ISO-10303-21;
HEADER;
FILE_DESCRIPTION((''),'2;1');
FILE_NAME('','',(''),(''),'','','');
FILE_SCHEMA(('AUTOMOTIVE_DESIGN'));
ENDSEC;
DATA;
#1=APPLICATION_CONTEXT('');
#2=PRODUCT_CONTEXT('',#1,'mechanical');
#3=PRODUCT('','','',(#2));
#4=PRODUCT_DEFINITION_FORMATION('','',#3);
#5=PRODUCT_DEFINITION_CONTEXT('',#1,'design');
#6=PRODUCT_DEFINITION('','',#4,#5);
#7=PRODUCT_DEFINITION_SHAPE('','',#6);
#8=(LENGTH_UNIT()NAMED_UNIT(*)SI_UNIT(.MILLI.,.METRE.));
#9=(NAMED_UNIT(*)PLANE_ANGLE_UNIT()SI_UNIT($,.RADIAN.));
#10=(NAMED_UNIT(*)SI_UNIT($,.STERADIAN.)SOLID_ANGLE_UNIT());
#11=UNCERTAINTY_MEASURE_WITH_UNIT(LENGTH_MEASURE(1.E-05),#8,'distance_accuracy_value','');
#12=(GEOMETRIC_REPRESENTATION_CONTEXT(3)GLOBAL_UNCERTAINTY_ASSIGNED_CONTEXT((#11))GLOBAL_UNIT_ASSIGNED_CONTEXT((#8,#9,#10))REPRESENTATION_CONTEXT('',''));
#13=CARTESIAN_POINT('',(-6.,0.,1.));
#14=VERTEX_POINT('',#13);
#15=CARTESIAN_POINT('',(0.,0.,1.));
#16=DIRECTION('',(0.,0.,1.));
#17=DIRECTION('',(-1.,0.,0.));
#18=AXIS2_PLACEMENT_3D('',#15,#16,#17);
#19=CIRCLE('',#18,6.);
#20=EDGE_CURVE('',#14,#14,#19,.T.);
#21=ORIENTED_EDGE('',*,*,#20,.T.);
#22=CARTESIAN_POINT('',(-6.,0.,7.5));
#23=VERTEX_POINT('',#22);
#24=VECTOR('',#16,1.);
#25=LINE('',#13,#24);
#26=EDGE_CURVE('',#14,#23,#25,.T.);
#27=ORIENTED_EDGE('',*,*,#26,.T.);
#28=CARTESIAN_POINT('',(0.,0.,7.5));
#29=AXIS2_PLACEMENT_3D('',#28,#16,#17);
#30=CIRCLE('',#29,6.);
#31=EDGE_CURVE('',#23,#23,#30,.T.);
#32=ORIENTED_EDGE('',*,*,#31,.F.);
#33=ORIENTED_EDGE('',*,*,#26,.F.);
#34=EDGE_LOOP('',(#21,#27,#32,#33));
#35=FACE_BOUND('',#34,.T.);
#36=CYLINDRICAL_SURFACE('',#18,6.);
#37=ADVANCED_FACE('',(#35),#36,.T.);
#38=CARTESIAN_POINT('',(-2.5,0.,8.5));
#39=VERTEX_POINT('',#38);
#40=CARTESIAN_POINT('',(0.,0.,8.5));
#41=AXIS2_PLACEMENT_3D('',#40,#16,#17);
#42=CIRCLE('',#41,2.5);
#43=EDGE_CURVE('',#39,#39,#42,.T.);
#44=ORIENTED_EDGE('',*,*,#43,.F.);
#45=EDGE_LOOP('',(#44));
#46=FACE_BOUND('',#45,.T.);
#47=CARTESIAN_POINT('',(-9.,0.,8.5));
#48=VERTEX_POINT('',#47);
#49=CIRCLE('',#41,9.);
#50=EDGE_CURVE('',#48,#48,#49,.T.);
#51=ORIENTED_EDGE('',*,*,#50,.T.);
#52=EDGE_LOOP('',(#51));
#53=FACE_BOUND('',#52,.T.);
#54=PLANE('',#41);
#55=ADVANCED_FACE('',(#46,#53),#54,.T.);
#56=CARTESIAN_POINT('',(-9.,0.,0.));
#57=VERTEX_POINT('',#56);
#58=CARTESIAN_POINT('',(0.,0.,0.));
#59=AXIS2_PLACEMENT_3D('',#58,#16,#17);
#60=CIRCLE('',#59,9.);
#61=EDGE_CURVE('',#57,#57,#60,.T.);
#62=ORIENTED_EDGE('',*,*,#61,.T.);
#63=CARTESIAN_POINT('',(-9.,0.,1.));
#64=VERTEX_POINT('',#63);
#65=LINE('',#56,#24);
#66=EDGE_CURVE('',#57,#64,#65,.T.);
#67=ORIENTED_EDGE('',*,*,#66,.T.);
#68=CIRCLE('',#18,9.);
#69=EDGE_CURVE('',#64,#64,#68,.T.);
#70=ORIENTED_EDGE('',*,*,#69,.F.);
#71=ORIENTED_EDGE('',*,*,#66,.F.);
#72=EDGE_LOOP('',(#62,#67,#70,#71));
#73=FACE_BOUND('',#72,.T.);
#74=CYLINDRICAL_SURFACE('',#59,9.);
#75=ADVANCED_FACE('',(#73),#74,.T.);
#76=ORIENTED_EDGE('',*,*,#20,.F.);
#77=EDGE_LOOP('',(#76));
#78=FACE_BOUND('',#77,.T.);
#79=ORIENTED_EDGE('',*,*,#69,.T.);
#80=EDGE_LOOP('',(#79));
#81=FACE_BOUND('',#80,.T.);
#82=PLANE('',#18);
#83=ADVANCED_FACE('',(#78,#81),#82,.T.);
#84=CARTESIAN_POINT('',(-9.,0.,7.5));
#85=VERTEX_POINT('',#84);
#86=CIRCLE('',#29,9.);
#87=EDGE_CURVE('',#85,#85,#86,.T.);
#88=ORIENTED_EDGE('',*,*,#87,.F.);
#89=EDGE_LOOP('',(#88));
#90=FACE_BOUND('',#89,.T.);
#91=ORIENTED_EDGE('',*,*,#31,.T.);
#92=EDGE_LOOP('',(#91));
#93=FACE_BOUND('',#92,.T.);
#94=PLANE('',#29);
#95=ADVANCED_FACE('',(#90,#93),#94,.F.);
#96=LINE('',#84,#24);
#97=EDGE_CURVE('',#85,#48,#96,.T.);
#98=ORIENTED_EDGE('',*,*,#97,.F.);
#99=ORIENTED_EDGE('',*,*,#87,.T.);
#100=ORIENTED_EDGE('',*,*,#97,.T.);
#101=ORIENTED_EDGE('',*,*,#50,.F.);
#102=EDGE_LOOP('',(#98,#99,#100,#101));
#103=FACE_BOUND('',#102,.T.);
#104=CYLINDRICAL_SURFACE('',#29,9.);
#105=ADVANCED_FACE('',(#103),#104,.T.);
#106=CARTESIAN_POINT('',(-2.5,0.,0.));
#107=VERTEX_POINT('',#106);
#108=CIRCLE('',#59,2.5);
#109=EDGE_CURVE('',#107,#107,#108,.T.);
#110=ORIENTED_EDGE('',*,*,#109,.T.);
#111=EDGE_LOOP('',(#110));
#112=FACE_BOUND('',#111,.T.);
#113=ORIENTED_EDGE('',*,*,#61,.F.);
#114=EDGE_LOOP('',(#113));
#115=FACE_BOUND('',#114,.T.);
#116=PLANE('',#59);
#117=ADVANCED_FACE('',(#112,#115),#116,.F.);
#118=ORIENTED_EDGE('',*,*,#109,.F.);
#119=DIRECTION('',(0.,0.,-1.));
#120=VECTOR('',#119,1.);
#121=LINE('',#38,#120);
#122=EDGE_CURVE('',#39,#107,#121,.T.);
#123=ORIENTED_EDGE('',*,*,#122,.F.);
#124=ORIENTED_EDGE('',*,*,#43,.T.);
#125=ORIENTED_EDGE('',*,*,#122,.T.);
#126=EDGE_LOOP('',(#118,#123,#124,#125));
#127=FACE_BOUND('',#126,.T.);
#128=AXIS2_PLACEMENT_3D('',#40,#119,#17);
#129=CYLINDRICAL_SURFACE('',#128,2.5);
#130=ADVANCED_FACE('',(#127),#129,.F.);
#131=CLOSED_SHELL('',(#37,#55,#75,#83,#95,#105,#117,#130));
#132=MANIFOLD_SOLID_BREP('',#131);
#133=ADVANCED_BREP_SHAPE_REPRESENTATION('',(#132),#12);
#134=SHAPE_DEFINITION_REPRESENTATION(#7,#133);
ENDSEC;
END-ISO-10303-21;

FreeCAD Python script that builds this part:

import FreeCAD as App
import Part
import Sketcher

V = App.Vector


def add_polygon(sketch, points):
    """Adds a closed chain of lines whose ends are joined by coincident constraints."""
    first, n = sketch.GeometryCount, len(points)
    for a, b in zip(points, points[1:] + points[:1]):
        sketch.addGeometry(Part.LineSegment(App.Vector(*a, 0), App.Vector(*b, 0)), False)
    for i in range(n):
        sketch.addConstraint(Sketcher.Constraint("Coincident", first + i, 2, first + (i + 1) % n, 1))

doc = App.newDocument("Part")
body = doc.addObject("PartDesign::Body", "Body")

# Sketch on XZ plane
sketch1 = doc.addObject("Sketcher::SketchObject", "Sketch")
body.addObject(sketch1)
sketch1.AttachmentSupport = (doc.XZ_Plane, [""])
sketch1.MapMode = "FlatFace"
add_polygon(sketch1, [(-2.5, 0), (-2.5, 8.5), (-9, 8.5), (-9, 7.5), (-6, 7.5), (-6, 1), (-9, 1), (-9, 0)])  # lines 0-7
sketch1.addConstraint([
    Sketcher.Constraint("Vertical", 0),
    Sketcher.Constraint("Horizontal", 1),
    Sketcher.Constraint("Vertical", 2),
    Sketcher.Constraint("Horizontal", 3),
    Sketcher.Constraint("Vertical", 4),
    Sketcher.Constraint("Horizontal", 5),
    Sketcher.Constraint("Vertical", 6),
    Sketcher.Constraint("Horizontal", 7),
    Sketcher.Constraint("PointOnObject", 6, 2, -1),
    Sketcher.Constraint("Vertical", 2, 2, 5, 2),
    Sketcher.Constraint("Equal", 7, 4),
    Sketcher.Constraint("Equal", 2, 6),
    Sketcher.Constraint("DistanceX", 1, 2, -1, 1, 9.0),
    Sketcher.Constraint("DistanceX", 3, 2, -1, 1, 6.0),
    Sketcher.Constraint("DistanceX", 0, 2, -1, 1, 2.5),
    Sketcher.Constraint("DistanceY", 2, 2, 2, 1, 1.0),
])
revolution = doc.addObject("PartDesign::Revolution", "Revolution")
body.addObject(revolution)
revolution.Profile = sketch1
revolution.ReferenceAxis = (sketch1, ["V_Axis"])
revolution.Angle = 360

doc.recompute()
